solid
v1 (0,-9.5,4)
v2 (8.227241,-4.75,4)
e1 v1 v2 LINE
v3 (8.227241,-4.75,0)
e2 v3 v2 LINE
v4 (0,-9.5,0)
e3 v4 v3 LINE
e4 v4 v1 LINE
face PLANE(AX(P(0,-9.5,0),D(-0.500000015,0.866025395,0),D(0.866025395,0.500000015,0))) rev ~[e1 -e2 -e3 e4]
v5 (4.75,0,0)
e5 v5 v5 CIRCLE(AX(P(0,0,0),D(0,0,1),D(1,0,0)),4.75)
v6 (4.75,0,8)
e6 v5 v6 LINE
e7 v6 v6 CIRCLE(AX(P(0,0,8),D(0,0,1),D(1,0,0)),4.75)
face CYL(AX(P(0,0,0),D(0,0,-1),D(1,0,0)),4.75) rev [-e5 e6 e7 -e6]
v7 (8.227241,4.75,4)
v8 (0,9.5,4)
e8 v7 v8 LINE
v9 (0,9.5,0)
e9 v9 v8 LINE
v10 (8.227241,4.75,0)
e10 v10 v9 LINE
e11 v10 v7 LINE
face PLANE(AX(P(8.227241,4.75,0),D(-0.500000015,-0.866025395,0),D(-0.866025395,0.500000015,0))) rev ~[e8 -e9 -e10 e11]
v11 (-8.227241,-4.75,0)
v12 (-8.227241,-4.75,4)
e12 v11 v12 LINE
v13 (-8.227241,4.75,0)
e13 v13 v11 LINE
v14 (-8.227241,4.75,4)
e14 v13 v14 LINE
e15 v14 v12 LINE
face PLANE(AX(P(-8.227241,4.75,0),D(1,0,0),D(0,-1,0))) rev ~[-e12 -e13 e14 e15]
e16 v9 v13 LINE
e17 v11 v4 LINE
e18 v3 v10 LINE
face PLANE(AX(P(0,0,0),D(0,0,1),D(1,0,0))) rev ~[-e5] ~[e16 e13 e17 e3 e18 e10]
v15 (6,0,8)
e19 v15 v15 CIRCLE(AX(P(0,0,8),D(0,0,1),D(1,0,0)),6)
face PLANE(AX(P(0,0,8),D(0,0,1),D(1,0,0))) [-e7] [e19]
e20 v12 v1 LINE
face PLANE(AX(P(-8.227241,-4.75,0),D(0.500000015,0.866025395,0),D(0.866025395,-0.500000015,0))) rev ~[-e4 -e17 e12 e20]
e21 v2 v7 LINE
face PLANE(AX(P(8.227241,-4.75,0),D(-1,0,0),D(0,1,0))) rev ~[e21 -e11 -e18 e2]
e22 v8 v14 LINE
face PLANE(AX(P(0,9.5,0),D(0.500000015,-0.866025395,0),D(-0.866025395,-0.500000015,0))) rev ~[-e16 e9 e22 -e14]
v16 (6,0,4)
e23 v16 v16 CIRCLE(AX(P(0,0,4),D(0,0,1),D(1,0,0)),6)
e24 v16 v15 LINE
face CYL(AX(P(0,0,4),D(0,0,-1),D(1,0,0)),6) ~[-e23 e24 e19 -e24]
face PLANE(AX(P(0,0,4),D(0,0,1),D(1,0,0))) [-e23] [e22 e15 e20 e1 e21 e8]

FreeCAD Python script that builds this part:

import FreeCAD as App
import Part
import Sketcher
from FreeCAD import Vector
Q = App.Units.Quantity

doc = App.newDocument("Part")
params = doc.addObject("Spreadsheet::Sheet", "Params")
for row, (alias, value) in enumerate([
    ("sketch1_diameter", "9.5 mm"),
    ("pad1_length", "8 mm"),
    ("sketch2_height", "9.5 mm"),
    ("pad2_length", "4 mm"),
    ("sketch3_diameter", "12 mm"),
    ("pad3_length", "4 mm"),
], start=1):
    params.set(f"A{row}", alias)
    params.set(f"B{row}", "=" + value)
    params.setAlias(f"B{row}", alias)

body = doc.addObject("PartDesign::Body", "Body")

# Sketch on XY plane
sketch1 = doc.addObject("Sketcher::SketchObject", "Sketch")
body.addObject(sketch1)
sketch1.AttachmentSupport = (doc.XY_Plane, [""])
sketch1.MapMode = "FlatFace"
sketch1.addGeometry(Part.Circle(Vector(0, 0, 0), Vector(0, 0, 1), 4.75), False)
sketch1.addConstraint(Sketcher.Constraint("Coincident", 0, 3, -1, 1))
sketch1.addConstraint(Sketcher.Constraint("Diameter", 0, Q("9.5 mm")))
sketch1.setExpression("Constraints[1]", "Params.sketch1_diameter")
pad1 = doc.addObject("PartDesign::Pad", "Pad")
body.addObject(pad1)
pad1.Profile = sketch1
pad1.setExpression("Length", "Params.pad1_length")
body2 = doc.addObject("PartDesign::Body", "Body001")

# Sketch on XY plane
sketch2 = doc.addObject("Sketcher::SketchObject", "Sketch001")
body2.addObject(sketch2)
sketch2.AttachmentSupport = (doc.getObject("XY_Plane001"), [""])
sketch2.MapMode = "FlatFace"
sketch2.addGeometry(Part.LineSegment(Vector(8.227241, 4.75, 0), Vector(0, 9.5, 0)), False)
sketch2.addGeometry(Part.LineSegment(Vector(0, 9.5, 0), Vector(-8.227241, 4.75, 0)), False)
sketch2.addGeometry(Part.LineSegment(Vector(-8.227241, 4.75, 0), Vector(-8.227241, -4.75, 0)), False)
sketch2.addGeometry(Part.LineSegment(Vector(-8.227241, -4.75, 0), Vector(0, -9.5, 0)), False)
sketch2.addGeometry(Part.LineSegment(Vector(0, -9.5, 0), Vector(8.227241, -4.75, 0)), False)
sketch2.addGeometry(Part.LineSegment(Vector(8.227241, -4.75, 0), Vector(8.227241, 4.75, 0)), False)
sketch2.addConstraint(Sketcher.Constraint("Coincident", 0, 2, 1, 1))
sketch2.addConstraint(Sketcher.Constraint("Coincident", 1, 2, 2, 1))
sketch2.addConstraint(Sketcher.Constraint("Coincident", 2, 2, 3, 1))
sketch2.addConstraint(Sketcher.Constraint("Coincident", 3, 2, 4, 1))
sketch2.addConstraint(Sketcher.Constraint("Coincident", 4, 2, 5, 1))
sketch2.addConstraint(Sketcher.Constraint("Coincident", 5, 2, 0, 1))
sketch2.addConstraint(Sketcher.Constraint("Vertical", 2))
sketch2.addConstraint(Sketcher.Constraint("Vertical", 5))
sketch2.addConstraint(Sketcher.Constraint("Symmetric", 0, 2, 3, 2, -1, 1))
sketch2.addConstraint(Sketcher.Constraint("Symmetric", 1, 2, 4, 2, -1, 1))
sketch2.addConstraint(Sketcher.Constraint("PointOnObject", 0, 2, -2))
sketch2.addConstraint(Sketcher.Constraint("Parallel", 0, 3))
sketch2.addConstraint(Sketcher.Constraint("Horizontal", 2, 2, 4, 2))
sketch2.addConstraint(Sketcher.Constraint("Angle", 0, Q("149.999999 deg")))
sketch2.addConstraint(Sketcher.Constraint("DistanceY", 2, 2, 2, 1, Q("9.5 mm")))
sketch2.addConstraint(Sketcher.Constraint("DistanceY", 3, 2, 0, 2, Q("19 mm")))
sketch2.setExpression("Constraints[14]", "Params.sketch2_height")
pad2 = doc.addObject("PartDesign::Pad", "Pad001")
body2.addObject(pad2)
pad2.Profile = sketch2
pad2.setExpression("Length", "Params.pad2_length")
body3 = doc.addObject("PartDesign::Body", "Body002")

# Sketch on XY plane
sketch3 = doc.addObject("Sketcher::SketchObject", "Sketch002")
body3.addObject(sketch3)
sketch3.AttachmentSupport = (doc.getObject("XY_Plane002"), [""])
sketch3.MapMode = "FlatFace"
sketch3.AttachmentOffset = App.Placement(Vector(0, 0, 4), App.Rotation())
sketch3.addGeometry(Part.Circle(Vector(0, 0, 0), Vector(0, 0, 1), 6), False)
sketch3.addConstraint(Sketcher.Constraint("Coincident", 0, 3, -1, 1))
sketch3.addConstraint(Sketcher.Constraint("Diameter", 0, Q("12 mm")))
sketch3.setExpression("Constraints[1]", "Params.sketch3_diameter")
pad3 = doc.addObject("PartDesign::Pad", "Pad002")
body3.addObject(pad3)
pad3.Profile = sketch3
pad3.setExpression("Length", "Params.pad3_length")
doc.recompute()

boolean = doc.addObject("PartDesign::Boolean", "Boolean")
body3.addObject(boolean)
boolean.Type = "Fuse"
boolean.addObjects([body2])
doc.recompute()

boolean2 = doc.addObject("PartDesign::Boolean", "Boolean001")
body3.addObject(boolean2)
boolean2.Type = "Cut"
boolean2.addObjects([body])

doc.recompute()
